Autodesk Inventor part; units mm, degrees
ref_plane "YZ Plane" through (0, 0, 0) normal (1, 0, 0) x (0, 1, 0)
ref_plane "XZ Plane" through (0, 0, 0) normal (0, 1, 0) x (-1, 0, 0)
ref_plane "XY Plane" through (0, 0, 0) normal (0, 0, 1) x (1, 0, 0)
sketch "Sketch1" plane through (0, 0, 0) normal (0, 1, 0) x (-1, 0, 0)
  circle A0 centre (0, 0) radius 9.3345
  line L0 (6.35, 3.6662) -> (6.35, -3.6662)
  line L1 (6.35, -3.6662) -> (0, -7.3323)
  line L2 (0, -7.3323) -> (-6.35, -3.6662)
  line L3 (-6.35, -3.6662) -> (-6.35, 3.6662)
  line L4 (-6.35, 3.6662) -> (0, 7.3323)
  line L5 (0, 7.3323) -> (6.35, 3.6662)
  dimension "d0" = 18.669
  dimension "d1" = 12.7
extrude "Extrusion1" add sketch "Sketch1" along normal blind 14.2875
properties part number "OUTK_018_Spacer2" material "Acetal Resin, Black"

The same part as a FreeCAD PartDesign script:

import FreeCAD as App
import Part
import Sketcher
from FreeCAD import Vector
Q = App.Units.Quantity


def add_polygon(sketch, points):
    """Adds a closed chain of lines whose ends are joined by coincident constraints."""
    first, n = sketch.GeometryCount, len(points)
    for a, b in zip(points, points[1:] + points[:1]):
        sketch.addGeometry(Part.LineSegment(App.Vector(*a, 0), App.Vector(*b, 0)), False)
    for i in range(n):
        sketch.addConstraint(Sketcher.Constraint("Coincident", first + i, 2, first + (i + 1) % n, 1))

doc = App.newDocument("Part")
body = doc.addObject("PartDesign::Body", "Body")

sketch1 = body.newObject("Sketcher::SketchObject", "Sketch")
sketch1.AttachmentSupport = (doc.getObject("XZ_Plane"), [""])
sketch1.MapMode = "FlatFace"
sketch1.addGeometry(Part.Circle(Vector(0, 0, 0), Vector(0, 0, 1), 9), False)
add_polygon(sketch1, [(0, 7), (-6, 4), (-6, -4), (0, -7), (6, -4), (6, 4)])
sketch1.addConstraint([
    Sketcher.Constraint("Vertical", 2),
    Sketcher.Constraint("Vertical", 5),
    Sketcher.Constraint("Coincident", 0, 3, -1, 1),
    Sketcher.Constraint("Symmetric", 1, 2, 4, 2, -1, 1),
    Sketcher.Constraint("Symmetric", 3, 2, 6, 2, -1, 1),
    Sketcher.Constraint("PointOnObject", 3, 2, -2),
    Sketcher.Constraint("Parallel", 3, 6),
    Sketcher.Constraint("Horizontal", 2, 2, 4, 2),
    Sketcher.Constraint("Diameter", 0, Q("0.735 in")),
    Sketcher.Constraint("DistanceX", 2, 2, 4, 2, Q("0.5 in")),
    Sketcher.Constraint("Angle", 1, Q("-150.0005 deg")),
    Sketcher.Constraint("DistanceY", 3, 2, 1, 2, Q("0.433 in")),
])
pad1 = body.newObject("PartDesign::Pad", "Pad")
pad1.Profile = sketch1
pad1.Length = Q("0.5625 in")
pad1.Reversed = True

doc.recompute()
